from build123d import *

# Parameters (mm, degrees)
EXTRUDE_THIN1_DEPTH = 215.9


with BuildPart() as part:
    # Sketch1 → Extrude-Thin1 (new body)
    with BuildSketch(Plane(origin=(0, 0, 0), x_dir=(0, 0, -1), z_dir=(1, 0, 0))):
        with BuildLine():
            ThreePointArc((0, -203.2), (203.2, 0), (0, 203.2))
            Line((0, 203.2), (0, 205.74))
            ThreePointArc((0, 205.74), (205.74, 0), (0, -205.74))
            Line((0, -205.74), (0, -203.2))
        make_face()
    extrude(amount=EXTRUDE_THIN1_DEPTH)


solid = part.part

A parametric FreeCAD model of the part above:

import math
import FreeCAD as App
import Part
import Sketcher
from FreeCAD import Vector
Q = App.Units.Quantity

doc = App.newDocument("Part")
body = doc.addObject("PartDesign::Body", "Body")

# Sketch on YZ plane
sketch1 = body.newObject("Sketcher::SketchObject", "Sketch")
sketch1.AttachmentSupport = (doc.getObject("YZ_Plane"), [""])
sketch1.MapMode = "FlatFace"
sketch1.addGeometry([
    Part.ArcOfCircle(Part.Circle(Vector(0, 0, 0), Vector(0, 0, 1), 203.2), math.radians(180), math.radians(360)),
    Part.LineSegment(Vector(-203.2, 0, 0), Vector(-205.74, 0, 0)),
    Part.ArcOfCircle(Part.Circle(Vector(0, 0, 0), Vector(0, 0, 1), 205.74), math.radians(180), math.radians(360)),
    Part.LineSegment(Vector(205.74, 0, 0), Vector(203.2, 0, 0)),
], False)
sketch1.addConstraint([
    Sketcher.Constraint("Coincident", 0, 1, 1, 1),
    Sketcher.Constraint("Coincident", 1, 2, 2, 1),
    Sketcher.Constraint("Coincident", 2, 2, 3, 1),
    Sketcher.Constraint("Coincident", 3, 2, 0, 2),
    Sketcher.Constraint("Horizontal", 1),
    Sketcher.Constraint("Horizontal", 3),
    Sketcher.Constraint("Coincident", 0, 3, -1, 1),
    Sketcher.Constraint("Coincident", 2, 3, -1, 1),
    Sketcher.Constraint("PointOnObject", 0, 1, -1),
    Sketcher.Constraint("PointOnObject", 2, 2, -1),
    Sketcher.Constraint("Radius", 0, Q("8 in")),
    Sketcher.Constraint("Radius", 2, Q("8.1 in")),
])
pad1 = body.newObject("PartDesign::Pad", "Pad")
pad1.Profile = sketch1
pad1.Length = Q("8.5 in")

doc.recompute()
